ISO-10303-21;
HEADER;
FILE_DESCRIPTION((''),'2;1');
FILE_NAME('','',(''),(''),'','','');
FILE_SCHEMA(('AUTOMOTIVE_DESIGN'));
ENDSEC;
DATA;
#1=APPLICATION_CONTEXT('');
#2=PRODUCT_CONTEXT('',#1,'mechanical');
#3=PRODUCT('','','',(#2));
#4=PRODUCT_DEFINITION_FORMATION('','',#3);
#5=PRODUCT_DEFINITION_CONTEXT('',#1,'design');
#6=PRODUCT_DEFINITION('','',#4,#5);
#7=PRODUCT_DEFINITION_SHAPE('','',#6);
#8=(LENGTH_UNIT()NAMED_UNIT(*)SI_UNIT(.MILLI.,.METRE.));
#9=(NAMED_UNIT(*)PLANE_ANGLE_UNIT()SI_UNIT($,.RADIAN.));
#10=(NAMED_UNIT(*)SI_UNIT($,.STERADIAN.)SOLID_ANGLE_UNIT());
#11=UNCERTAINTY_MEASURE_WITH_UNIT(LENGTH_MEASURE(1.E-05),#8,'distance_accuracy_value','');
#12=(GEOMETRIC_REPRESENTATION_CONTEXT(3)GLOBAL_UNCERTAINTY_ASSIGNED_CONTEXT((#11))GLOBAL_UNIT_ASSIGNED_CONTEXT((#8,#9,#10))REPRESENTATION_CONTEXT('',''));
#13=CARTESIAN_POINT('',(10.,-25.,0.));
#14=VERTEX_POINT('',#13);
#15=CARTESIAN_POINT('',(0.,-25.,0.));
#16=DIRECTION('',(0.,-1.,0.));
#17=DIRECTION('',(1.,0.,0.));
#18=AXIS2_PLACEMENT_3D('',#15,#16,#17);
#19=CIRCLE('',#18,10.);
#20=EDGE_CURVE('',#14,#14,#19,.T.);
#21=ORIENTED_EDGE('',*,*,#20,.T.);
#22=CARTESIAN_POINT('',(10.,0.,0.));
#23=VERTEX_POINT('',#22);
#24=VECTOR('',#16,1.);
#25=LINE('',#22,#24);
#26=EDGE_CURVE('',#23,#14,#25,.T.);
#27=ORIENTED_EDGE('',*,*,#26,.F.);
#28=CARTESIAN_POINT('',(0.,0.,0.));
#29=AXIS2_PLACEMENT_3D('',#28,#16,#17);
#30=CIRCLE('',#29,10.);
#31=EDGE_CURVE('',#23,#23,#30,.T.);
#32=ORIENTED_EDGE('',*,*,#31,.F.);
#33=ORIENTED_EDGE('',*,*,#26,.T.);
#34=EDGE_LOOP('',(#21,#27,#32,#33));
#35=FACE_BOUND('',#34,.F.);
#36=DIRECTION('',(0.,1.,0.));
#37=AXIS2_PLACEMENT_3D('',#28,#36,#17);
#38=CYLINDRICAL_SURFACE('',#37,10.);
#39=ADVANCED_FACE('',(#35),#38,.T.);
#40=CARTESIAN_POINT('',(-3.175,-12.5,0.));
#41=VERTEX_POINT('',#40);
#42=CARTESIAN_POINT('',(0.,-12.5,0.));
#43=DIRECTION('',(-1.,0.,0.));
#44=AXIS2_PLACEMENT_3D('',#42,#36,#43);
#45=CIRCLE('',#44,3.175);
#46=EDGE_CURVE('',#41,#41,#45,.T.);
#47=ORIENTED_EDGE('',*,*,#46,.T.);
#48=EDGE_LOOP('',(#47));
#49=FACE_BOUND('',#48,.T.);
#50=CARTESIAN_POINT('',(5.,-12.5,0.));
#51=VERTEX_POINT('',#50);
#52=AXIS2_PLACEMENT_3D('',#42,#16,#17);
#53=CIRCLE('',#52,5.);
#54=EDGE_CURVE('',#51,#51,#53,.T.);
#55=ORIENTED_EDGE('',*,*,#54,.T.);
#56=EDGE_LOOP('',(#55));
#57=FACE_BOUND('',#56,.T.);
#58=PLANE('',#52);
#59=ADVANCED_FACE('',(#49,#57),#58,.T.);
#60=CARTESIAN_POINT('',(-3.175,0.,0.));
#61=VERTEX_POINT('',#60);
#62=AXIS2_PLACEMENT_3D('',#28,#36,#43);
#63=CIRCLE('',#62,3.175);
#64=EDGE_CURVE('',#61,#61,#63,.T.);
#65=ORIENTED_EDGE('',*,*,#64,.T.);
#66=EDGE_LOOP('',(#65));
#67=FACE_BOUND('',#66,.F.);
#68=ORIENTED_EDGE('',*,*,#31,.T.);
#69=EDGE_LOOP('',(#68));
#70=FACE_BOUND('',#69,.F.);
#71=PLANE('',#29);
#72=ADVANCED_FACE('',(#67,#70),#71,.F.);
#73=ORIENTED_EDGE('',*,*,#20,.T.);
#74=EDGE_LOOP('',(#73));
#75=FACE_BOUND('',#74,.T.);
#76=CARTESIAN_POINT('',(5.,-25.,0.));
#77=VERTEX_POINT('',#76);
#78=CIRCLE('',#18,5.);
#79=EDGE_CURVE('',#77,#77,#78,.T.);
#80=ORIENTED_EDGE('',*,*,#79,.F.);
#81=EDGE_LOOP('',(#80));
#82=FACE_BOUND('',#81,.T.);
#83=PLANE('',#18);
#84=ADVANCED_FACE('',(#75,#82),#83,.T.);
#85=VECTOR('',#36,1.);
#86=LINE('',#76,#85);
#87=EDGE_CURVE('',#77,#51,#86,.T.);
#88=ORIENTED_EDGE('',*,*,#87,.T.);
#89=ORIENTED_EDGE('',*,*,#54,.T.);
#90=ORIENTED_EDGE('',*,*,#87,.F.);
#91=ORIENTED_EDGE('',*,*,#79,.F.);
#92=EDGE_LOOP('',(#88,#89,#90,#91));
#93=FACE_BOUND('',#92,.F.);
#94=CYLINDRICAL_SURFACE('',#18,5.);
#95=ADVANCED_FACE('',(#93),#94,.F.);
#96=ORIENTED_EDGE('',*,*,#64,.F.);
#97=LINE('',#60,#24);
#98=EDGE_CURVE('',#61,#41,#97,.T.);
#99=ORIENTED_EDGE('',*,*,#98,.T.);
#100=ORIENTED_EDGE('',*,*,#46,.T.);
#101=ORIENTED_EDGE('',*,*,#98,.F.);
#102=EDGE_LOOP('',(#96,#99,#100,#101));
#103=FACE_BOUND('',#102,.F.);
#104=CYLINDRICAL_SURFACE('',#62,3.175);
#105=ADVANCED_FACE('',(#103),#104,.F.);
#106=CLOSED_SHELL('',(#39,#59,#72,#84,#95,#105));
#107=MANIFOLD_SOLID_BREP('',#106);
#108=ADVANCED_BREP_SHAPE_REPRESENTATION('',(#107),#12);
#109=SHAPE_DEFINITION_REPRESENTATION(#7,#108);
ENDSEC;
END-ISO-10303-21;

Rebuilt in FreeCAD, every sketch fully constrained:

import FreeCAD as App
import Part
import Sketcher
Q = App.Units.Quantity

doc = App.newDocument("Part")
body = doc.addObject("PartDesign::Body", "Body")

# Sketch on XZ plane
sketch1 = body.newObject("Sketcher::SketchObject", "Sketch")
sketch1.AttachmentSupport = (doc.getObject("XZ_Plane"), [""])
sketch1.MapMode = "FlatFace"
sketch1.addGeometry(Part.Circle(App.Vector(0, 0, 0), App.Vector(0, 0, 1), 10), False)
sketch1.addConstraint([
    Sketcher.Constraint("Coincident", 0, 3, -1, 1),
    Sketcher.Constraint("Diameter", 0, Q("20 mm")),
])
pad1 = body.newObject("PartDesign::Pad", "Pad")
pad1.Profile = sketch1
pad1.Length = 25

# Sketch on XZ plane
sketch2 = body.newObject("Sketcher::SketchObject", "Sketch001")
sketch2.AttachmentSupport = (doc.getObject("XZ_Plane"), [""])
sketch2.MapMode = "FlatFace"
sketch2.AttachmentOffset = App.Placement(App.Vector(0, 0, 25), App.Rotation())
sketch2.addGeometry(Part.Circle(App.Vector(0, 0, 0), App.Vector(0, 0, 1), 5), False)
sketch2.addConstraint([
    Sketcher.Constraint("Coincident", 0, 3, -1, 1),
    Sketcher.Constraint("Diameter", 0, Q("10 mm")),
])
pocket1 = body.newObject("PartDesign::Pocket", "Pocket")
pocket1.Profile = sketch2
pocket1.Length = 12.5

# Sketch on XZ plane
sketch3 = body.newObject("Sketcher::SketchObject", "Sketch002")
sketch3.AttachmentSupport = (doc.getObject("XZ_Plane"), [""])
sketch3.MapMode = "FlatFace"
sketch3.addGeometry(Part.Circle(App.Vector(0, 0, 0), App.Vector(0, 0, 1), 3.2), False)
sketch3.addConstraint([
    Sketcher.Constraint("Coincident", 0, 3, -1, 1),
    Sketcher.Constraint("Diameter", 0, Q("6.35 mm")),
])
pocket2 = body.newObject("PartDesign::Pocket", "Pocket001")
pocket2.Profile = sketch3
pocket2.Type = "ThroughAll"
pocket2.Reversed = True

doc.recompute()
